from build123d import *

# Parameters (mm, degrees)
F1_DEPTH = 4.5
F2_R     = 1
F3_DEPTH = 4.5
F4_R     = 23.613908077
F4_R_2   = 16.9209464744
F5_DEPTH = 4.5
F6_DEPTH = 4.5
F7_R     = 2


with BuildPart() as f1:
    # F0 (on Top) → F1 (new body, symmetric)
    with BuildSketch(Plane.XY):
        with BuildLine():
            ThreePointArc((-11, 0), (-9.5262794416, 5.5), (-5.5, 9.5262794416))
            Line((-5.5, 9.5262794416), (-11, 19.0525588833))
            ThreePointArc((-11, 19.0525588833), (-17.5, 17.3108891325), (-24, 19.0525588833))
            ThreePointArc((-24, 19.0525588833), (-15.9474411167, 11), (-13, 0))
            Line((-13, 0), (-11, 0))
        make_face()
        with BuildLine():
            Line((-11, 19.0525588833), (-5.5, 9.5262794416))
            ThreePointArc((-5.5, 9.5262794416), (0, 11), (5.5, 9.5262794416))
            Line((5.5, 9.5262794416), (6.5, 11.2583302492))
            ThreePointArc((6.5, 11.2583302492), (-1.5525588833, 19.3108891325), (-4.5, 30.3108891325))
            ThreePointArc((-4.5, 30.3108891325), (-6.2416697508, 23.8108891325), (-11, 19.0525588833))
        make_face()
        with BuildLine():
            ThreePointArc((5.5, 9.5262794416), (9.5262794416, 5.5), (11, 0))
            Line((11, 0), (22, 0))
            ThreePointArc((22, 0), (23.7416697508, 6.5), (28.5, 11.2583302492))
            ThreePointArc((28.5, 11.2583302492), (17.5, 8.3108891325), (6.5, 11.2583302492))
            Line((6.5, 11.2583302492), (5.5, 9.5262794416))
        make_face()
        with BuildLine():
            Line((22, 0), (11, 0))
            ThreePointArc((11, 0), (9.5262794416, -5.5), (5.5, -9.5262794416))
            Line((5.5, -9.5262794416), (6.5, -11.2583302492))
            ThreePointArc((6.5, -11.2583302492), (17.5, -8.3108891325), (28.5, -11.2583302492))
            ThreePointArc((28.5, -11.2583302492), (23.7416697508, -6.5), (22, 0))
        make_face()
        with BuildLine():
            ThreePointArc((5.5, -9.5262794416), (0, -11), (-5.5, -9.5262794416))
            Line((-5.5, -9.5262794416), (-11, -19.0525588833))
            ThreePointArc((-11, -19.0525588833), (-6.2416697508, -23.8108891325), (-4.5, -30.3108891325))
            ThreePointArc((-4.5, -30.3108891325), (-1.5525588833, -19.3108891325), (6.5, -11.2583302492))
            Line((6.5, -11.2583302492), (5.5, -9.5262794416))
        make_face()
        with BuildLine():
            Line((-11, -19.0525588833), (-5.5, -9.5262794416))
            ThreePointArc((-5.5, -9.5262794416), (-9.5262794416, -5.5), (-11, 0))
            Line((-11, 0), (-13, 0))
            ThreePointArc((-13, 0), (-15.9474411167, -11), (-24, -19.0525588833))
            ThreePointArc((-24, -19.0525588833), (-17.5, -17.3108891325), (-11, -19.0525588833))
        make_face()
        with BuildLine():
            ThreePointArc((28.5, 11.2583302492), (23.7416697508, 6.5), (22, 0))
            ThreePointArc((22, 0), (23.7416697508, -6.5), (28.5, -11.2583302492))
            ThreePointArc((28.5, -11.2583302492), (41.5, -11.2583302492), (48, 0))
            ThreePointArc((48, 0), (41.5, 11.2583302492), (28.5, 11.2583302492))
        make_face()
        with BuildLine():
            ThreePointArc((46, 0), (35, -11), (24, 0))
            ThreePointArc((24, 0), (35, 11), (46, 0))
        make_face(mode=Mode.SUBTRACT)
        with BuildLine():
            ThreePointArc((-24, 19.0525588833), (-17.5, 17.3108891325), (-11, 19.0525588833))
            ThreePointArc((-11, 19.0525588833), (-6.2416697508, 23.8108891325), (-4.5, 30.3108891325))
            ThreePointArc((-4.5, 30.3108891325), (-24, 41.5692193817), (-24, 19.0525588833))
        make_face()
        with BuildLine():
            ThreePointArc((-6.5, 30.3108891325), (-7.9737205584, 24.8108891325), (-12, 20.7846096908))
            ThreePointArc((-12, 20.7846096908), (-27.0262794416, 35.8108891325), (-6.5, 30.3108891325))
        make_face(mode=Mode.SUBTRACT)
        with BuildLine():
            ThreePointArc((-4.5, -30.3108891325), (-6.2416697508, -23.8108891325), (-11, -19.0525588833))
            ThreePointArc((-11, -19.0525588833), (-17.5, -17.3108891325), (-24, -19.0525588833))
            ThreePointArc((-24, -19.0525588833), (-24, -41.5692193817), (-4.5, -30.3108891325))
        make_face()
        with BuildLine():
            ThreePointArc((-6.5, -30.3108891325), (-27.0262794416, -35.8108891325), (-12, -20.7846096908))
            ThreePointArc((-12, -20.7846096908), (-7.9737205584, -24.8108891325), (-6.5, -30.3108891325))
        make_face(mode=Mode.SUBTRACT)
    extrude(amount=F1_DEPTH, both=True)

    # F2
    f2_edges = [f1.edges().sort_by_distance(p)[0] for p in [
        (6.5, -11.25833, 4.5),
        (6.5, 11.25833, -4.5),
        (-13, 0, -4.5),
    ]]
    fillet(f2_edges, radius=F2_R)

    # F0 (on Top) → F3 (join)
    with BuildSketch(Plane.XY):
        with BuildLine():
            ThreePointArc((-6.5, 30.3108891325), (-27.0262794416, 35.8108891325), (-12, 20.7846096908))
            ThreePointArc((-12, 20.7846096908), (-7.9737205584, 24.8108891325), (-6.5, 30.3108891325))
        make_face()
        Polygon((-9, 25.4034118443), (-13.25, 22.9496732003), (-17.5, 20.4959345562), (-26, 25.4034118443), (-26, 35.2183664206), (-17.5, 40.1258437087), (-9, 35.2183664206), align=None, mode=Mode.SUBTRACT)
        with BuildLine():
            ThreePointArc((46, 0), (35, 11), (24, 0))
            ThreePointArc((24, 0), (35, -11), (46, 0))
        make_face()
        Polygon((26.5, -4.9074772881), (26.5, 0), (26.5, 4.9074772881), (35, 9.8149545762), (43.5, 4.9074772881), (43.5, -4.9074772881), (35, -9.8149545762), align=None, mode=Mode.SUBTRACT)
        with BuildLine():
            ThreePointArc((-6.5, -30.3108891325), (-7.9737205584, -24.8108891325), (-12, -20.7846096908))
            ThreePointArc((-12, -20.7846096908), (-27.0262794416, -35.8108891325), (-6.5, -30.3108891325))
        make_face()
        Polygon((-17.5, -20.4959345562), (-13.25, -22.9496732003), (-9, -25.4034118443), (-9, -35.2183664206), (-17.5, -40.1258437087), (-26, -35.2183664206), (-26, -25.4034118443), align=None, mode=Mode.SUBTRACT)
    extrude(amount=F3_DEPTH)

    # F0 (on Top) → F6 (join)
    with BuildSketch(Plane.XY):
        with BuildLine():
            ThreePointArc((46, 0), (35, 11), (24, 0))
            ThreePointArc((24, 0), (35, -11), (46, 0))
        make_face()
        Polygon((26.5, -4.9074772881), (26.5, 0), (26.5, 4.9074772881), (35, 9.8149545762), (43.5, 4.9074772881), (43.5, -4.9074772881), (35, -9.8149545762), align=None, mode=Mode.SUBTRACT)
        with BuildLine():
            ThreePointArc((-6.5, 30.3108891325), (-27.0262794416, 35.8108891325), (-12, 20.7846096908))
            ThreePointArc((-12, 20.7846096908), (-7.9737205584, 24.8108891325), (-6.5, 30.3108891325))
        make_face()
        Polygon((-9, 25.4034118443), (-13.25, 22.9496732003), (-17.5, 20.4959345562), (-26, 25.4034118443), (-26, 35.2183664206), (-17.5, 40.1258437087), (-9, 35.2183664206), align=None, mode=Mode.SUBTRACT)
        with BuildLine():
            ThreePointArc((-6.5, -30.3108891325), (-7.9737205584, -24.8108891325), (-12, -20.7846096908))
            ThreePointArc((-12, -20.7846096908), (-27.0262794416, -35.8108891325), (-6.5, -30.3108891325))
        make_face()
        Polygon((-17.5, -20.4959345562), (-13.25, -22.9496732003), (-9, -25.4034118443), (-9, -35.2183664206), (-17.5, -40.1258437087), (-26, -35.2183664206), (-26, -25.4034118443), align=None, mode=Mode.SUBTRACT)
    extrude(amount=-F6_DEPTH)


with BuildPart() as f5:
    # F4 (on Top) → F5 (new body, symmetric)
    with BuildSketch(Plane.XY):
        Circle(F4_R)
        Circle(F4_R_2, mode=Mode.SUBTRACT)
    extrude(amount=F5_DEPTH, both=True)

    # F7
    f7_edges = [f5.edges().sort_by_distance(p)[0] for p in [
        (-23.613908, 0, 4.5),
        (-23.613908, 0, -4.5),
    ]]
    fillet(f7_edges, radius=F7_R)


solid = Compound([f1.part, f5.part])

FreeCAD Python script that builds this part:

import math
import FreeCAD as App
import Part
import Sketcher
from FreeCAD import Vector
Q = App.Units.Quantity


def edges_at(feature, points):
    """Names of the edges that pass closest to the given points."""
    edges = feature.Shape.Edges
    near = lambda p: min(range(len(edges)), key=lambda i: edges[i].distToShape(Part.Vertex(*p))[0])
    return sorted({f"Edge{near(p) + 1}" for p in points})

doc = App.newDocument("Part")
body = doc.addObject("PartDesign::Body", "Body")

# Sketch on XY plane
sketch1 = body.newObject("Sketcher::SketchObject", "Sketch")
sketch1.AttachmentSupport = (doc.getObject("XY_Plane"), [""])
sketch1.MapMode = "FlatFace"
sketch1.addGeometry([
    Part.ArcOfCircle(Part.Circle(Vector(18, -30, 0), Vector(0, 0, 1), 22), math.radians(120), math.radians(180)),  # 0
    Part.ArcOfCircle(Part.Circle(Vector(18, -30, 0), Vector(0, 0, 1), 22), math.radians(60), math.radians(120)),  # 1
    Part.ArcOfCircle(Part.Circle(Vector(35, 0, 0), Vector(0, 0, 1), 13), math.radians(-120), math.radians(120)),  # 2
    Part.ArcOfCircle(Part.Circle(Vector(18, 30, 0), Vector(0, 0, 1), 22), math.radians(-120), math.radians(-60)),  # 3
    Part.ArcOfCircle(Part.Circle(Vector(18, 30, 0), Vector(0, 0, 1), 22), math.radians(180), math.radians(240)),  # 4
    Part.ArcOfCircle(Part.Circle(Vector(-18, 30, 0), Vector(0, 0, 1), 13), math.radians(0), math.radians(240)),  # 5
    Part.ArcOfCircle(Part.Circle(Vector(-35, 0, 0), Vector(0, 0, 1), 22), math.radians(0), math.radians(60)),  # 6
    Part.ArcOfCircle(Part.Circle(Vector(-35, 0, 0), Vector(0, 0, 1), 22), math.radians(-60), math.radians(0)),  # 7
    Part.ArcOfCircle(Part.Circle(Vector(-18, -30, 0), Vector(0, 0, 1), 13), math.radians(120), math.radians(360)),  # 8
    Part.ArcOfCircle(Part.Circle(Vector(-18, -30, 0), Vector(0, 0, 1), 11), math.radians(0), math.radians(60)),  # 9
    Part.ArcOfCircle(Part.Circle(Vector(-18, -30, 0), Vector(0, 0, 1), 11), math.radians(60), math.radians(360)),  # 10
    Part.ArcOfCircle(Part.Circle(Vector(0, 0, 0), Vector(0, 0, 1), 11), math.radians(120), math.radians(180)),  # 11
    Part.ArcOfCircle(Part.Circle(Vector(0, 0, 0), Vector(0, 0, 1), 11), math.radians(60), math.radians(120)),  # 12
    Part.ArcOfCircle(Part.Circle(Vector(0, 0, 0), Vector(0, 0, 1), 11), math.radians(0), math.radians(60)),  # 13
    Part.ArcOfCircle(Part.Circle(Vector(0, 0, 0), Vector(0, 0, 1), 11), math.radians(-60), math.radians(0)),  # 14
    Part.ArcOfCircle(Part.Circle(Vector(0, 0, 0), Vector(0, 0, 1), 11), math.radians(-120), math.radians(-60)),  # 15
    Part.ArcOfCircle(Part.Circle(Vector(0, 0, 0), Vector(0, 0, 1), 11), math.radians(180), math.radians(240)),  # 16
    Part.ArcOfCircle(Part.Circle(Vector(-18, 30, 0), Vector(0, 0, 1), 11), math.radians(0), math.radians(300)),  # 17
    Part.ArcOfCircle(Part.Circle(Vector(-18, 30, 0), Vector(0, 0, 1), 11), math.radians(-60), math.radians(0)),  # 18
    Part.Circle(Vector(35, 0, 0), Vector(0, 0, 1), 11),  # 19
], False)
sketch1.addConstraint([
    Sketcher.Constraint("Tangent", 0, 1, 1, 2),
    Sketcher.Constraint("Tangent", 1, 1, 2, 1),
    Sketcher.Constraint("Tangent", 2, 2, 3, 2),
    Sketcher.Constraint("Tangent", 3, 1, 4, 2),
    Sketcher.Constraint("Tangent", 4, 1, 5, 1),
    Sketcher.Constraint("Tangent", 5, 2, 6, 2),
    Sketcher.Constraint("Tangent", 6, 1, 7, 2),
    Sketcher.Constraint("Tangent", 7, 1, 8, 1),
    Sketcher.Constraint("Tangent", 8, 2, 0, 2),
    Sketcher.Constraint("Tangent", 9, 1, 10, 2),
    Sketcher.Constraint("Coincident", 10, 1, 9, 2),
    Sketcher.Constraint("Tangent", 11, 1, 12, 2),
    Sketcher.Constraint("Tangent", 12, 1, 13, 2),
    Sketcher.Constraint("Tangent", 13, 1, 14, 2),
    Sketcher.Constraint("Tangent", 14, 1, 15, 2),
    Sketcher.Constraint("Tangent", 15, 1, 16, 2),
    Sketcher.Constraint("Tangent", 16, 1, 11, 2),
    Sketcher.Constraint("Tangent", 17, 1, 18, 2),
    Sketcher.Constraint("Coincident", 18, 1, 17, 2),
    Sketcher.Constraint("Coincident", 11, 3, -1, 1),
    Sketcher.Constraint("Coincident", 13, 3, -1, 1),
    Sketcher.Constraint("Coincident", 9, 3, 8, 3),
    Sketcher.Constraint("Coincident", 17, 3, 5, 3),
    Sketcher.Constraint("Coincident", 19, 3, 2, 3),
    Sketcher.Constraint("Equal", 0, 1),
    Sketcher.Constraint("Equal", 1, 3),
    Sketcher.Constraint("Equal", 3, 4),
    Sketcher.Constraint("Equal", 2, 5),
    Sketcher.Constraint("Equal", 4, 6),
    Sketcher.Constraint("Equal", 6, 7),
    Sketcher.Constraint("Equal", 5, 8),
    Sketcher.Constraint("Equal", 10, 11),
    Sketcher.Constraint("Equal", 13, 14),
    Sketcher.Constraint("Equal", 16, 17),
    Sketcher.Constraint("Equal", 18, 19),
    Sketcher.Constraint("Symmetric", 0, 3, 5, 3, -1, 1),
    Sketcher.Constraint("Symmetric", 3, 3, 5, 3, -2),
    Sketcher.Constraint("Symmetric", 10, 1, 18, 1, -1),
    Sketcher.Constraint("PointOnObject", 6, 1, -1),
    Sketcher.Constraint("PointOnObject", 13, 1, -1),
    Sketcher.Constraint("PointOnObject", 16, 1, -1),
    Sketcher.Constraint("Horizontal", 0, 1, 1, 1),
    Sketcher.Constraint("Horizontal", 2, 2, 3, 1),
    Sketcher.Constraint("Horizontal", 8, 2, 9, 1),
    Sketcher.Constraint("Horizontal", 11, 1, 12, 1),
    Sketcher.Constraint("Horizontal", 14, 1, 15, 1),
    Sketcher.Constraint("Horizontal", 4, 1, 17, 1),
    Sketcher.Constraint("Vertical", 12, 1, 14, 1),
    Sketcher.Constraint("Diameter", 19, Q("22 mm")),
    Sketcher.Constraint("Radius", 0, Q("22 mm")),
    Sketcher.Constraint("Radius", 2, Q("13 mm")),
    Sketcher.Constraint("DistanceX", -1, 1, 2, 3, Q("35 mm")),
    Sketcher.Constraint("DistanceX", 10, 1, -1, 1, Q("12 mm")),
    Sketcher.Constraint("DistanceX", 12, 1, 3, 1, Q("1 mm")),
])
pad1 = body.newObject("PartDesign::Pad", "Pad")
pad1.Profile = sketch1
pad1.Length = 9
pad1.Midplane = True
doc.recompute()

fillet = body.newObject("PartDesign::Fillet", "Fillet")
fillet.Base = (pad1, edges_at(pad1, [(17.5, -8.311, 4.5), (17.5, 8.311, -4.5), (-13, 0, 0)]))
fillet.Radius = 1

# Sketch on XY plane
sketch2 = body.newObject("Sketcher::SketchObject", "Sketch001")
sketch2.AttachmentSupport = (doc.getObject("XY_Plane"), [""])
sketch2.MapMode = "FlatFace"
sketch2.addGeometry([
    Part.ArcOfCircle(Part.Circle(Vector(-17.5, 30.3, 0), Vector(0, 0, 1), 11), math.radians(0), math.radians(300)),  # 0
    Part.ArcOfCircle(Part.Circle(Vector(-17.5, 30.3, 0), Vector(0, 0, 1), 11), math.radians(-60), math.radians(0)),  # 1
    Part.LineSegment(Vector(-9, 35.2, 0), Vector(-9, 25.4, 0)),  # 2
    Part.LineSegment(Vector(-9, 25.4, 0), Vector(-13.2, 22.9, 0)),  # 3
    Part.LineSegment(Vector(-13.2, 22.9, 0), Vector(-17.5, 20.5, 0)),  # 4
    Part.LineSegment(Vector(-17.5, 20.5, 0), Vector(-26, 25.4, 0)),  # 5
    Part.LineSegment(Vector(-26, 25.4, 0), Vector(-26, 35.2, 0)),  # 6
    Part.LineSegment(Vector(-26, 35.2, 0), Vector(-17.5, 40.1, 0)),  # 7
    Part.LineSegment(Vector(-17.5, 40.1, 0), Vector(-9, 35.2, 0)),  # 8
    Part.Circle(Vector(35, 0, 0), Vector(0, 0, 1), 11),  # 9
    Part.LineSegment(Vector(35, -9.8, 0), Vector(26.5, -4.9, 0)),  # 10
    Part.LineSegment(Vector(26.5, -4.9, 0), Vector(26.5, 4.9, 0)),  # 11
    Part.LineSegment(Vector(26.5, 4.9, 0), Vector(35, 9.8, 0)),  # 12
    Part.LineSegment(Vector(35, 9.8, 0), Vector(43.5, 4.9, 0)),  # 13
    Part.LineSegment(Vector(43.5, 4.9, 0), Vector(43.5, -4.9, 0)),  # 14
    Part.LineSegment(Vector(43.5, -4.9, 0), Vector(35, -9.8, 0)),  # 15
    Part.ArcOfCircle(Part.Circle(Vector(-17.5, -30.3, 0), Vector(0, 0, 1), 11), math.radians(0), math.radians(60)),  # 16
    Part.ArcOfCircle(Part.Circle(Vector(-17.5, -30.3, 0), Vector(0, 0, 1), 11), math.radians(60), math.radians(360)),  # 17
    Part.LineSegment(Vector(-26, -25.4, 0), Vector(-17.5, -20.5, 0)),  # 18
    Part.LineSegment(Vector(-17.5, -20.5, 0), Vector(-13.2, -22.9, 0)),  # 19
    Part.LineSegment(Vector(-13.2, -22.9, 0), Vector(-9, -25.4, 0)),  # 20
    Part.LineSegment(Vector(-9, -25.4, 0), Vector(-9, -35.2, 0)),  # 21
    Part.LineSegment(Vector(-9, -35.2, 0), Vector(-17.5, -40.1, 0)),  # 22
    Part.LineSegment(Vector(-17.5, -40.1, 0), Vector(-26, -35.2, 0)),  # 23
    Part.LineSegment(Vector(-26, -35.2, 0), Vector(-26, -25.4, 0)),  # 24
], False)
sketch2.addConstraint([
    Sketcher.Constraint("Tangent", 0, 1, 1, 2),
    Sketcher.Constraint("Coincident", 1, 1, 0, 2),
    Sketcher.Constraint("Coincident", 2, 2, 3, 1),
    Sketcher.Constraint("Coincident", 3, 2, 4, 1),
    Sketcher.Constraint("Coincident", 4, 2, 5, 1),
    Sketcher.Constraint("Coincident", 5, 2, 6, 1),
    Sketcher.Constraint("Coincident", 6, 2, 7, 1),
    Sketcher.Constraint("Coincident", 7, 2, 8, 1),
    Sketcher.Constraint("Coincident", 8, 2, 2, 1),
    Sketcher.Constraint("Coincident", 10, 2, 11, 1),
    Sketcher.Constraint("Coincident", 11, 2, 12, 1),
    Sketcher.Constraint("Coincident", 12, 2, 13, 1),
    Sketcher.Constraint("Coincident", 13, 2, 14, 1),
    Sketcher.Constraint("Coincident", 14, 2, 15, 1),
    Sketcher.Constraint("Coincident", 15, 2, 10, 1),
    Sketcher.Constraint("Tangent", 16, 1, 17, 2),
    Sketcher.Constraint("Coincident", 17, 1, 16, 2),
    Sketcher.Constraint("Coincident", 18, 2, 19, 1),
    Sketcher.Constraint("Coincident", 19, 2, 20, 1),
    Sketcher.Constraint("Coincident", 20, 2, 21, 1),
    Sketcher.Constraint("Coincident", 21, 2, 22, 1),
    Sketcher.Constraint("Coincident", 22, 2, 23, 1),
    Sketcher.Constraint("Coincident", 23, 2, 24, 1),
    Sketcher.Constraint("Coincident", 24, 2, 18, 1),
    Sketcher.Constraint("Vertical", 2),
    Sketcher.Constraint("Vertical", 6),
    Sketcher.Constraint("Vertical", 11),
    Sketcher.Constraint("Vertical", 14),
    Sketcher.Constraint("Vertical", 21),
    Sketcher.Constraint("Vertical", 24),
    Sketcher.Constraint("Equal", 1, 9),
    Sketcher.Constraint("Equal", 9, 16),
    Sketcher.Constraint("Symmetric", 0, 3, 16, 3, -1),
    Sketcher.Constraint("Symmetric", 12, 2, 15, 2, -1),
    Sketcher.Constraint("Symmetric", 4, 2, 18, 2, -1),
    Sketcher.Constraint("Symmetric", 3, 2, 19, 2, -1),
    Sketcher.Constraint("Symmetric", 2, 2, 20, 2, -1),
    Sketcher.Constraint("Symmetric", 7, 2, 22, 2, -1),
    Sketcher.Constraint("Symmetric", 6, 2, 23, 2, -1),
    Sketcher.Constraint("PointOnObject", 9, 3, -1),
    Sketcher.Constraint("Parallel", 3, 4),
    Sketcher.Constraint("Parallel", 4, 7),
    Sketcher.Constraint("Parallel", 5, 8),
    Sketcher.Constraint("Parallel", 8, 10),
    Sketcher.Constraint("Parallel", 7, 12),
    Sketcher.Constraint("Parallel", 10, 13),
    Sketcher.Constraint("Parallel", 12, 15),
    Sketcher.Constraint("Parallel", 15, 18),
    Sketcher.Constraint("Parallel", 13, 19),
    Sketcher.Constraint("Parallel", 18, 22),
    Sketcher.Constraint("Horizontal", 1, 3, 0, 1),
    Sketcher.Constraint("Horizontal", 2, 2, 5, 2),
    Sketcher.Constraint("Horizontal", 6, 2, 8, 2),
    Sketcher.Constraint("Horizontal", 11, 2, 13, 2),
    Sketcher.Constraint("Horizontal", 17, 3, 16, 1),
    Sketcher.Constraint("Vertical", 17, 3, 4, 2),
    Sketcher.Constraint("Vertical", 9, 3, 12, 2),
    Sketcher.Constraint("Vertical", 1, 1, 17, 1),
    Sketcher.Constraint("Equal", 6, 11),
    Sketcher.Constraint("Equal", 3, 4),
    Sketcher.Constraint("Equal", 8, 10),
    Sketcher.Constraint("Diameter", 9, Q("22 mm")),
    Sketcher.Constraint("Angle", 3, Q("-150 deg")),
    Sketcher.Constraint("DistanceX", -1, 1, 9, 3, Q("35 mm")),
    Sketcher.Constraint("DistanceX", 1, 1, -1, 1, Q("12 mm")),
    Sketcher.Constraint("DistanceX", 2, 2, -1, 1, Q("9 mm")),
    Sketcher.Constraint("DistanceX", 5, 2, -1, 1, Q("26 mm")),
    Sketcher.Constraint("DistanceY", 17, 3, 1, 1, Q("51.095499 mm")),
    Sketcher.Constraint("DistanceY", 2, 2, 2, 1, Q("9.814955 mm")),
    Sketcher.Constraint("DistanceY", -1, 1, 2, 2, Q("25.403412 mm")),
])
pad2 = body.newObject("PartDesign::Pad", "Pad001")
pad2.Profile = sketch2
pad2.Length = 4.5

# Sketch on XY plane
sketch3 = body.newObject("Sketcher::SketchObject", "Sketch002")
sketch3.AttachmentSupport = (doc.getObject("XY_Plane"), [""])
sketch3.MapMode = "FlatFace"
sketch3.addGeometry([
    Part.Circle(Vector(35, 0, 0), Vector(0, 0, 1), 11),  # 0
    Part.LineSegment(Vector(35, -9.8, 0), Vector(26.5, -4.9, 0)),  # 1
    Part.LineSegment(Vector(26.5, -4.9, 0), Vector(26.5, 4.9, 0)),  # 2
    Part.LineSegment(Vector(26.5, 4.9, 0), Vector(35, 9.8, 0)),  # 3
    Part.LineSegment(Vector(35, 9.8, 0), Vector(43.5, 4.9, 0)),  # 4
    Part.LineSegment(Vector(43.5, 4.9, 0), Vector(43.5, -4.9, 0)),  # 5
    Part.LineSegment(Vector(43.5, -4.9, 0), Vector(35, -9.8, 0)),  # 6
    Part.ArcOfCircle(Part.Circle(Vector(-17.5, 30.3, 0), Vector(0, 0, 1), 11), math.radians(0), math.radians(300)),  # 7
    Part.ArcOfCircle(Part.Circle(Vector(-17.5, 30.3, 0), Vector(0, 0, 1), 11), math.radians(-60), math.radians(0)),  # 8
    Part.LineSegment(Vector(-9, 35.2, 0), Vector(-9, 25.4, 0)),  # 9
    Part.LineSegment(Vector(-9, 25.4, 0), Vector(-13.2, 22.9, 0)),  # 10
    Part.LineSegment(Vector(-13.2, 22.9, 0), Vector(-17.5, 20.5, 0)),  # 11
    Part.LineSegment(Vector(-17.5, 20.5, 0), Vector(-26, 25.4, 0)),  # 12
    Part.LineSegment(Vector(-26, 25.4, 0), Vector(-26, 35.2, 0)),  # 13
    Part.LineSegment(Vector(-26, 35.2, 0), Vector(-17.5, 40.1, 0)),  # 14
    Part.LineSegment(Vector(-17.5, 40.1, 0), Vector(-9, 35.2, 0)),  # 15
    Part.ArcOfCircle(Part.Circle(Vector(-17.5, -30.3, 0), Vector(0, 0, 1), 11), math.radians(0), math.radians(60)),  # 16
    Part.ArcOfCircle(Part.Circle(Vector(-17.5, -30.3, 0), Vector(0, 0, 1), 11), math.radians(60), math.radians(360)),  # 17
    Part.LineSegment(Vector(-26, -25.4, 0), Vector(-17.5, -20.5, 0)),  # 18
    Part.LineSegment(Vector(-17.5, -20.5, 0), Vector(-13.2, -22.9, 0)),  # 19
    Part.LineSegment(Vector(-13.2, -22.9, 0), Vector(-9, -25.4, 0)),  # 20
    Part.LineSegment(Vector(-9, -25.4, 0), Vector(-9, -35.2, 0)),  # 21
    Part.LineSegment(Vector(-9, -35.2, 0), Vector(-17.5, -40.1, 0)),  # 22
    Part.LineSegment(Vector(-17.5, -40.1, 0), Vector(-26, -35.2, 0)),  # 23
    Part.LineSegment(Vector(-26, -35.2, 0), Vector(-26, -25.4, 0)),  # 24
], False)
sketch3.addConstraint([
    Sketcher.Constraint("Coincident", 1, 2, 2, 1),
    Sketcher.Constraint("Coincident", 2, 2, 3, 1),
    Sketcher.Constraint("Coincident", 3, 2, 4, 1),
    Sketcher.Constraint("Coincident", 4, 2, 5, 1),
    Sketcher.Constraint("Coincident", 5, 2, 6, 1),
    Sketcher.Constraint("Coincident", 6, 2, 1, 1),
    Sketcher.Constraint("Tangent", 7, 1, 8, 2),
    Sketcher.Constraint("Coincident", 8, 1, 7, 2),
    Sketcher.Constraint("Coincident", 9, 2, 10, 1),
    Sketcher.Constraint("Coincident", 10, 2, 11, 1),
    Sketcher.Constraint("Coincident", 11, 2, 12, 1),
    Sketcher.Constraint("Coincident", 12, 2, 13, 1),
    Sketcher.Constraint("Coincident", 13, 2, 14, 1),
    Sketcher.Constraint("Coincident", 14, 2, 15, 1),
    Sketcher.Constraint("Coincident", 15, 2, 9, 1),
    Sketcher.Constraint("Tangent", 16, 1, 17, 2),
    Sketcher.Constraint("Coincident", 17, 1, 16, 2),
    Sketcher.Constraint("Coincident", 18, 2, 19, 1),
    Sketcher.Constraint("Coincident", 19, 2, 20, 1),
    Sketcher.Constraint("Coincident", 20, 2, 21, 1),
    Sketcher.Constraint("Coincident", 21, 2, 22, 1),
    Sketcher.Constraint("Coincident", 22, 2, 23, 1),
    Sketcher.Constraint("Coincident", 23, 2, 24, 1),
    Sketcher.Constraint("Coincident", 24, 2, 18, 1),
    Sketcher.Constraint("Vertical", 2),
    Sketcher.Constraint("Vertical", 5),
    Sketcher.Constraint("Vertical", 9),
    Sketcher.Constraint("Vertical", 13),
    Sketcher.Constraint("Vertical", 21),
    Sketcher.Constraint("Vertical", 24),
    Sketcher.Constraint("Equal", 0, 7),
    Sketcher.Constraint("Equal", 8, 16),
    Sketcher.Constraint("Symmetric", 7, 3, 16, 3, -1),
    Sketcher.Constraint("Symmetric", 3, 2, 6, 2, -1),
    Sketcher.Constraint("Symmetric", 11, 2, 18, 2, -1),
    Sketcher.Constraint("Symmetric", 10, 2, 19, 2, -1),
    Sketcher.Constraint("Symmetric", 9, 2, 20, 2, -1),
    Sketcher.Constraint("Symmetric", 14, 2, 22, 2, -1),
    Sketcher.Constraint("Symmetric", 13, 2, 23, 2, -1),
    Sketcher.Constraint("PointOnObject", 0, 3, -1),
    Sketcher.Constraint("Parallel", 1, 4),
    Sketcher.Constraint("Parallel", 3, 6),
    Sketcher.Constraint("Parallel", 6, 10),
    Sketcher.Constraint("Parallel", 10, 11),
    Sketcher.Constraint("Parallel", 4, 12),
    Sketcher.Constraint("Parallel", 11, 14),
    Sketcher.Constraint("Parallel", 12, 15),
    Sketcher.Constraint("Parallel", 14, 18),
    Sketcher.Constraint("Parallel", 15, 19),
    Sketcher.Constraint("Parallel", 18, 22),
    Sketcher.Constraint("Horizontal", 2, 2, 4, 2),
    Sketcher.Constraint("Horizontal", 8, 3, 7, 1),
    Sketcher.Constraint("Horizontal", 9, 2, 12, 2),
    Sketcher.Constraint("Horizontal", 13, 2, 15, 2),
    Sketcher.Constraint("Horizontal", 17, 3, 16, 1),
    Sketcher.Constraint("Vertical", 0, 3, 3, 2),
    Sketcher.Constraint("Vertical", 17, 3, 11, 2),
    Sketcher.Constraint("Vertical", 8, 1, 17, 1),
    Sketcher.Constraint("Equal", 5, 9),
    Sketcher.Constraint("Equal", 10, 11),
    Sketcher.Constraint("Equal", 6, 12),
    Sketcher.Constraint("Diameter", 0, Q("22 mm")),
    Sketcher.Constraint("Angle", 1, Q("150 deg")),
    Sketcher.Constraint("DistanceX", -1, 1, 0, 3, Q("35 mm")),
    Sketcher.Constraint("DistanceX", 8, 1, -1, 1, Q("12 mm")),
    Sketcher.Constraint("DistanceX", 9, 2, -1, 1, Q("9 mm")),
    Sketcher.Constraint("DistanceX", 12, 2, -1, 1, Q("26 mm")),
    Sketcher.Constraint("DistanceY", 2, 1, 2, 2, Q("9.814955 mm")),
    Sketcher.Constraint("DistanceY", -1, 1, 7, 3, Q("30.310889 mm")),
    Sketcher.Constraint("DistanceY", -1, 1, 9, 2, Q("25.403412 mm")),
])
pad3 = body.newObject("PartDesign::Pad", "Pad002")
pad3.Profile = sketch3
pad3.Length = 4.5
pad3.Reversed = True
body2 = doc.addObject("PartDesign::Body", "Body001")

# Sketch on XY plane
sketch4 = body2.newObject("Sketcher::SketchObject", "Sketch003")
sketch4.AttachmentSupport = (doc.getObject("XY_Plane001"), [""])
sketch4.MapMode = "FlatFace"
sketch4.addGeometry([
    Part.Circle(Vector(0, 0, 0), Vector(0, 0, 1), 24),
    Part.Circle(Vector(0, 0, 0), Vector(0, 0, 1), 17),
], False)
sketch4.addConstraint([
    Sketcher.Constraint("Coincident", 0, 3, -1, 1),
    Sketcher.Constraint("Coincident", 1, 3, -1, 1),
    Sketcher.Constraint("Diameter", 0, Q("47.227816 mm")),
    Sketcher.Constraint("Diameter", 1, Q("33.841893 mm")),
])
pad4 = body2.newObject("PartDesign::Pad", "Pad003")
pad4.Profile = sketch4
pad4.Length = 9
pad4.Midplane = True
doc.recompute()

fillet2 = body2.newObject("PartDesign::Fillet", "Fillet001")
fillet2.Base = (pad4, edges_at(pad4, [(-23.614, 0, 4.5), (-23.614, 0, -4.5)]))
fillet2.Radius = 2

doc.recompute()
